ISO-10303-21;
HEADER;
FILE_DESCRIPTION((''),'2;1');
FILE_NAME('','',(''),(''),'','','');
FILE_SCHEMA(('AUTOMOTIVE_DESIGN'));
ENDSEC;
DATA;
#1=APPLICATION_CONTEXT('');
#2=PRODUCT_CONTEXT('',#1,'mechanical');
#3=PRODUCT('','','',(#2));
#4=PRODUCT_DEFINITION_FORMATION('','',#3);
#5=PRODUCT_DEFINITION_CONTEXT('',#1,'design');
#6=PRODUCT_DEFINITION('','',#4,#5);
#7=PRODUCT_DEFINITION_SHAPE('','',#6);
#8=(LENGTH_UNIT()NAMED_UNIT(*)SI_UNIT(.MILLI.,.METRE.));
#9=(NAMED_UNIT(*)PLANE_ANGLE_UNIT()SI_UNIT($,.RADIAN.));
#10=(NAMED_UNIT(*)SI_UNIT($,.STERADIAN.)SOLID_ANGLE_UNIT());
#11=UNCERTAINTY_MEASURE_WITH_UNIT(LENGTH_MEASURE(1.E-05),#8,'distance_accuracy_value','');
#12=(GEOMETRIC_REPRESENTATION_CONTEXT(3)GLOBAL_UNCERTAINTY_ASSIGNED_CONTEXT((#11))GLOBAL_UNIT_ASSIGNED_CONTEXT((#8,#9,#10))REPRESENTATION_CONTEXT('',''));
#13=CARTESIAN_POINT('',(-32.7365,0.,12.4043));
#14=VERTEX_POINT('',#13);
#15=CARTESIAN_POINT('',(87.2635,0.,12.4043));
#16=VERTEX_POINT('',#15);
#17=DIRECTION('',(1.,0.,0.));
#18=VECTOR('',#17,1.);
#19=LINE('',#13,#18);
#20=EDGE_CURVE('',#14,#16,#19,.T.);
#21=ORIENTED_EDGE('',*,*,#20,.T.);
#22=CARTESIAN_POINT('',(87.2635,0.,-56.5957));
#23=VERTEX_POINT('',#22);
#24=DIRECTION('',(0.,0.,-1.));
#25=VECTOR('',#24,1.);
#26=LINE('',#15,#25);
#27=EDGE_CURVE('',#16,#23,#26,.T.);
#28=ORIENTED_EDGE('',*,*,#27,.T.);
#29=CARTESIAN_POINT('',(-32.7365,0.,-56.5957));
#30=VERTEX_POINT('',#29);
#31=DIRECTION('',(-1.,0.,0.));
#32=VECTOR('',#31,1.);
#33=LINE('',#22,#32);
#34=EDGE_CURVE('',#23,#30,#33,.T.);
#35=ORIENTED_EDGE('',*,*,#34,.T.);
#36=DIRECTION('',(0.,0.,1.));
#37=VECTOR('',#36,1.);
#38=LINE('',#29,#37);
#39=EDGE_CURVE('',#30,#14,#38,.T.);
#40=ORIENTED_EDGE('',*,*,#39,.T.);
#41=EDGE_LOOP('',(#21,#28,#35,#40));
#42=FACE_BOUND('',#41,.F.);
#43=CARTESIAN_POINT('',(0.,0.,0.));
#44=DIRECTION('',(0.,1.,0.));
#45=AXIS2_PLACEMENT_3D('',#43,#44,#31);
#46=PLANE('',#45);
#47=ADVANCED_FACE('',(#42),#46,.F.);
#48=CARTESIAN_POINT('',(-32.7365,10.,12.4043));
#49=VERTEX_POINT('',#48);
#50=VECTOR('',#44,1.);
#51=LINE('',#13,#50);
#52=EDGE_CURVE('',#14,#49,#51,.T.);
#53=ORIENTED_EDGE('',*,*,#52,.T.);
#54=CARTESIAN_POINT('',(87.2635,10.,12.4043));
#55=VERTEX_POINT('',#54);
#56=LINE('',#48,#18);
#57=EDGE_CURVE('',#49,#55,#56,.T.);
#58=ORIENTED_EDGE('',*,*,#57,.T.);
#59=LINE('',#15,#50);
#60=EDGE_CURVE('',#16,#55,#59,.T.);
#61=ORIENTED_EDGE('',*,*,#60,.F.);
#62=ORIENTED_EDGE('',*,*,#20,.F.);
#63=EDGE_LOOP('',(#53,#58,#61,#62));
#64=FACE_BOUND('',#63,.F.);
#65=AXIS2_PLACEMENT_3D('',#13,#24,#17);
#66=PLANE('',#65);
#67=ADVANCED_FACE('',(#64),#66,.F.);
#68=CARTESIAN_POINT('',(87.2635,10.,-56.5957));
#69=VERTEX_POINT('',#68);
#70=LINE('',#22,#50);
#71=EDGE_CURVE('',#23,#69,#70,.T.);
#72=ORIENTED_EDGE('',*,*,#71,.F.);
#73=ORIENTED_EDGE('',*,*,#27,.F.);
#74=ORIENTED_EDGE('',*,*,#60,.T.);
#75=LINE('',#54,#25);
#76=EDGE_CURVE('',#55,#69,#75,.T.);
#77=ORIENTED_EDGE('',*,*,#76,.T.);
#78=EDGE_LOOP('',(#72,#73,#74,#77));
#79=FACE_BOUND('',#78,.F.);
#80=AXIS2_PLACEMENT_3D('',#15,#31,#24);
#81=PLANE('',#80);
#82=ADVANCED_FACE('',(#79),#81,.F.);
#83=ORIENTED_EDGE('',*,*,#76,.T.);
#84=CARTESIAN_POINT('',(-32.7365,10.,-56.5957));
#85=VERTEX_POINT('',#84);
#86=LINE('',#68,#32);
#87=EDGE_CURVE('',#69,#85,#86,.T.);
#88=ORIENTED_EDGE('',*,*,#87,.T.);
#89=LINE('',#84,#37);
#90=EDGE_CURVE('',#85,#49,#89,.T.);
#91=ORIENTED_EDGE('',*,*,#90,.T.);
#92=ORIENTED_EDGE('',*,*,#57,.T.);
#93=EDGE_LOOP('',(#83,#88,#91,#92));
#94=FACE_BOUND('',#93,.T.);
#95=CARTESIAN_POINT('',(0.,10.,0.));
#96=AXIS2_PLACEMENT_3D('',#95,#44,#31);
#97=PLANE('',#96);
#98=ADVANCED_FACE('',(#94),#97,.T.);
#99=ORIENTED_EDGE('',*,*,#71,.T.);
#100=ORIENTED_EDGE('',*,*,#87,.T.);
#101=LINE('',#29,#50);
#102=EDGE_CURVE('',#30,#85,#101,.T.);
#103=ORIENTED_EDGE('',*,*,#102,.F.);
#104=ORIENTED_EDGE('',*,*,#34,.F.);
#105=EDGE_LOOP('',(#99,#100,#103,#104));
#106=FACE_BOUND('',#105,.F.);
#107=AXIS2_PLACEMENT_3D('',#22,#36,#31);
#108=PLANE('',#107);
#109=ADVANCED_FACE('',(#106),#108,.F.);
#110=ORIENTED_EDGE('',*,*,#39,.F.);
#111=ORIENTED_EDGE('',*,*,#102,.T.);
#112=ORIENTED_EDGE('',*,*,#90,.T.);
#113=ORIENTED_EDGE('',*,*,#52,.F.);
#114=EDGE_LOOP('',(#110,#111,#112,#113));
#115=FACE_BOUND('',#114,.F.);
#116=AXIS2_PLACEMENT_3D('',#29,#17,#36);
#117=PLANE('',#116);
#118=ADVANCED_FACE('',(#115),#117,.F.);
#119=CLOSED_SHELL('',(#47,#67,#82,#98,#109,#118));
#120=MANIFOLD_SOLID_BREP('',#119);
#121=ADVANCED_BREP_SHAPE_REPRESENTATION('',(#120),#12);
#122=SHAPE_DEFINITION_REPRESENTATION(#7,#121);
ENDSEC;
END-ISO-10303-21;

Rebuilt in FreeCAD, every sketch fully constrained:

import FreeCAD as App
import Part
import Sketcher

V = App.Vector

doc = App.newDocument("Part")
body = doc.addObject("PartDesign::Body", "Body")

# Sketch on XZ plane
sketch1 = body.newObject("Sketcher::SketchObject", "Sketch")
sketch1.AttachmentSupport = (doc.getObject("XZ_Plane"), [""])
sketch1.MapMode = "FlatFace"
sketch1.addGeometry([
    Part.LineSegment(V(-33, -57, 0), V(-33, 12, 0)),
    Part.LineSegment(V(-33, 12, 0), V(87, 12, 0)),
    Part.LineSegment(V(87, 12, 0), V(87, -57, 0)),
    Part.LineSegment(V(87, -57, 0), V(-33, -57, 0)),
], False)
sketch1.addConstraint([
    Sketcher.Constraint("Coincident", 0, 2, 1, 1),
    Sketcher.Constraint("Coincident", 1, 2, 2, 1),
    Sketcher.Constraint("Coincident", 2, 2, 3, 1),
    Sketcher.Constraint("Coincident", 3, 2, 0, 1),
    Sketcher.Constraint("Vertical", 0),
    Sketcher.Constraint("Horizontal", 1),
    Sketcher.Constraint("Vertical", 2),
    Sketcher.Constraint("Horizontal", 3),
    Sketcher.Constraint("DistanceX", 1, 1, 1, 2, 120.0),
    Sketcher.Constraint("DistanceY", 0, 1, 0, 2, 69.0),
    Sketcher.Constraint("DistanceX", 0, 2, -1, 1, 32.7365),
    Sketcher.Constraint("DistanceY", -1, 1, 0, 2, 12.4043),
])
pad1 = body.newObject("PartDesign::Pad", "Pad")
pad1.Profile = sketch1
pad1.Length = 10
pad1.Reversed = True

doc.recompute()
